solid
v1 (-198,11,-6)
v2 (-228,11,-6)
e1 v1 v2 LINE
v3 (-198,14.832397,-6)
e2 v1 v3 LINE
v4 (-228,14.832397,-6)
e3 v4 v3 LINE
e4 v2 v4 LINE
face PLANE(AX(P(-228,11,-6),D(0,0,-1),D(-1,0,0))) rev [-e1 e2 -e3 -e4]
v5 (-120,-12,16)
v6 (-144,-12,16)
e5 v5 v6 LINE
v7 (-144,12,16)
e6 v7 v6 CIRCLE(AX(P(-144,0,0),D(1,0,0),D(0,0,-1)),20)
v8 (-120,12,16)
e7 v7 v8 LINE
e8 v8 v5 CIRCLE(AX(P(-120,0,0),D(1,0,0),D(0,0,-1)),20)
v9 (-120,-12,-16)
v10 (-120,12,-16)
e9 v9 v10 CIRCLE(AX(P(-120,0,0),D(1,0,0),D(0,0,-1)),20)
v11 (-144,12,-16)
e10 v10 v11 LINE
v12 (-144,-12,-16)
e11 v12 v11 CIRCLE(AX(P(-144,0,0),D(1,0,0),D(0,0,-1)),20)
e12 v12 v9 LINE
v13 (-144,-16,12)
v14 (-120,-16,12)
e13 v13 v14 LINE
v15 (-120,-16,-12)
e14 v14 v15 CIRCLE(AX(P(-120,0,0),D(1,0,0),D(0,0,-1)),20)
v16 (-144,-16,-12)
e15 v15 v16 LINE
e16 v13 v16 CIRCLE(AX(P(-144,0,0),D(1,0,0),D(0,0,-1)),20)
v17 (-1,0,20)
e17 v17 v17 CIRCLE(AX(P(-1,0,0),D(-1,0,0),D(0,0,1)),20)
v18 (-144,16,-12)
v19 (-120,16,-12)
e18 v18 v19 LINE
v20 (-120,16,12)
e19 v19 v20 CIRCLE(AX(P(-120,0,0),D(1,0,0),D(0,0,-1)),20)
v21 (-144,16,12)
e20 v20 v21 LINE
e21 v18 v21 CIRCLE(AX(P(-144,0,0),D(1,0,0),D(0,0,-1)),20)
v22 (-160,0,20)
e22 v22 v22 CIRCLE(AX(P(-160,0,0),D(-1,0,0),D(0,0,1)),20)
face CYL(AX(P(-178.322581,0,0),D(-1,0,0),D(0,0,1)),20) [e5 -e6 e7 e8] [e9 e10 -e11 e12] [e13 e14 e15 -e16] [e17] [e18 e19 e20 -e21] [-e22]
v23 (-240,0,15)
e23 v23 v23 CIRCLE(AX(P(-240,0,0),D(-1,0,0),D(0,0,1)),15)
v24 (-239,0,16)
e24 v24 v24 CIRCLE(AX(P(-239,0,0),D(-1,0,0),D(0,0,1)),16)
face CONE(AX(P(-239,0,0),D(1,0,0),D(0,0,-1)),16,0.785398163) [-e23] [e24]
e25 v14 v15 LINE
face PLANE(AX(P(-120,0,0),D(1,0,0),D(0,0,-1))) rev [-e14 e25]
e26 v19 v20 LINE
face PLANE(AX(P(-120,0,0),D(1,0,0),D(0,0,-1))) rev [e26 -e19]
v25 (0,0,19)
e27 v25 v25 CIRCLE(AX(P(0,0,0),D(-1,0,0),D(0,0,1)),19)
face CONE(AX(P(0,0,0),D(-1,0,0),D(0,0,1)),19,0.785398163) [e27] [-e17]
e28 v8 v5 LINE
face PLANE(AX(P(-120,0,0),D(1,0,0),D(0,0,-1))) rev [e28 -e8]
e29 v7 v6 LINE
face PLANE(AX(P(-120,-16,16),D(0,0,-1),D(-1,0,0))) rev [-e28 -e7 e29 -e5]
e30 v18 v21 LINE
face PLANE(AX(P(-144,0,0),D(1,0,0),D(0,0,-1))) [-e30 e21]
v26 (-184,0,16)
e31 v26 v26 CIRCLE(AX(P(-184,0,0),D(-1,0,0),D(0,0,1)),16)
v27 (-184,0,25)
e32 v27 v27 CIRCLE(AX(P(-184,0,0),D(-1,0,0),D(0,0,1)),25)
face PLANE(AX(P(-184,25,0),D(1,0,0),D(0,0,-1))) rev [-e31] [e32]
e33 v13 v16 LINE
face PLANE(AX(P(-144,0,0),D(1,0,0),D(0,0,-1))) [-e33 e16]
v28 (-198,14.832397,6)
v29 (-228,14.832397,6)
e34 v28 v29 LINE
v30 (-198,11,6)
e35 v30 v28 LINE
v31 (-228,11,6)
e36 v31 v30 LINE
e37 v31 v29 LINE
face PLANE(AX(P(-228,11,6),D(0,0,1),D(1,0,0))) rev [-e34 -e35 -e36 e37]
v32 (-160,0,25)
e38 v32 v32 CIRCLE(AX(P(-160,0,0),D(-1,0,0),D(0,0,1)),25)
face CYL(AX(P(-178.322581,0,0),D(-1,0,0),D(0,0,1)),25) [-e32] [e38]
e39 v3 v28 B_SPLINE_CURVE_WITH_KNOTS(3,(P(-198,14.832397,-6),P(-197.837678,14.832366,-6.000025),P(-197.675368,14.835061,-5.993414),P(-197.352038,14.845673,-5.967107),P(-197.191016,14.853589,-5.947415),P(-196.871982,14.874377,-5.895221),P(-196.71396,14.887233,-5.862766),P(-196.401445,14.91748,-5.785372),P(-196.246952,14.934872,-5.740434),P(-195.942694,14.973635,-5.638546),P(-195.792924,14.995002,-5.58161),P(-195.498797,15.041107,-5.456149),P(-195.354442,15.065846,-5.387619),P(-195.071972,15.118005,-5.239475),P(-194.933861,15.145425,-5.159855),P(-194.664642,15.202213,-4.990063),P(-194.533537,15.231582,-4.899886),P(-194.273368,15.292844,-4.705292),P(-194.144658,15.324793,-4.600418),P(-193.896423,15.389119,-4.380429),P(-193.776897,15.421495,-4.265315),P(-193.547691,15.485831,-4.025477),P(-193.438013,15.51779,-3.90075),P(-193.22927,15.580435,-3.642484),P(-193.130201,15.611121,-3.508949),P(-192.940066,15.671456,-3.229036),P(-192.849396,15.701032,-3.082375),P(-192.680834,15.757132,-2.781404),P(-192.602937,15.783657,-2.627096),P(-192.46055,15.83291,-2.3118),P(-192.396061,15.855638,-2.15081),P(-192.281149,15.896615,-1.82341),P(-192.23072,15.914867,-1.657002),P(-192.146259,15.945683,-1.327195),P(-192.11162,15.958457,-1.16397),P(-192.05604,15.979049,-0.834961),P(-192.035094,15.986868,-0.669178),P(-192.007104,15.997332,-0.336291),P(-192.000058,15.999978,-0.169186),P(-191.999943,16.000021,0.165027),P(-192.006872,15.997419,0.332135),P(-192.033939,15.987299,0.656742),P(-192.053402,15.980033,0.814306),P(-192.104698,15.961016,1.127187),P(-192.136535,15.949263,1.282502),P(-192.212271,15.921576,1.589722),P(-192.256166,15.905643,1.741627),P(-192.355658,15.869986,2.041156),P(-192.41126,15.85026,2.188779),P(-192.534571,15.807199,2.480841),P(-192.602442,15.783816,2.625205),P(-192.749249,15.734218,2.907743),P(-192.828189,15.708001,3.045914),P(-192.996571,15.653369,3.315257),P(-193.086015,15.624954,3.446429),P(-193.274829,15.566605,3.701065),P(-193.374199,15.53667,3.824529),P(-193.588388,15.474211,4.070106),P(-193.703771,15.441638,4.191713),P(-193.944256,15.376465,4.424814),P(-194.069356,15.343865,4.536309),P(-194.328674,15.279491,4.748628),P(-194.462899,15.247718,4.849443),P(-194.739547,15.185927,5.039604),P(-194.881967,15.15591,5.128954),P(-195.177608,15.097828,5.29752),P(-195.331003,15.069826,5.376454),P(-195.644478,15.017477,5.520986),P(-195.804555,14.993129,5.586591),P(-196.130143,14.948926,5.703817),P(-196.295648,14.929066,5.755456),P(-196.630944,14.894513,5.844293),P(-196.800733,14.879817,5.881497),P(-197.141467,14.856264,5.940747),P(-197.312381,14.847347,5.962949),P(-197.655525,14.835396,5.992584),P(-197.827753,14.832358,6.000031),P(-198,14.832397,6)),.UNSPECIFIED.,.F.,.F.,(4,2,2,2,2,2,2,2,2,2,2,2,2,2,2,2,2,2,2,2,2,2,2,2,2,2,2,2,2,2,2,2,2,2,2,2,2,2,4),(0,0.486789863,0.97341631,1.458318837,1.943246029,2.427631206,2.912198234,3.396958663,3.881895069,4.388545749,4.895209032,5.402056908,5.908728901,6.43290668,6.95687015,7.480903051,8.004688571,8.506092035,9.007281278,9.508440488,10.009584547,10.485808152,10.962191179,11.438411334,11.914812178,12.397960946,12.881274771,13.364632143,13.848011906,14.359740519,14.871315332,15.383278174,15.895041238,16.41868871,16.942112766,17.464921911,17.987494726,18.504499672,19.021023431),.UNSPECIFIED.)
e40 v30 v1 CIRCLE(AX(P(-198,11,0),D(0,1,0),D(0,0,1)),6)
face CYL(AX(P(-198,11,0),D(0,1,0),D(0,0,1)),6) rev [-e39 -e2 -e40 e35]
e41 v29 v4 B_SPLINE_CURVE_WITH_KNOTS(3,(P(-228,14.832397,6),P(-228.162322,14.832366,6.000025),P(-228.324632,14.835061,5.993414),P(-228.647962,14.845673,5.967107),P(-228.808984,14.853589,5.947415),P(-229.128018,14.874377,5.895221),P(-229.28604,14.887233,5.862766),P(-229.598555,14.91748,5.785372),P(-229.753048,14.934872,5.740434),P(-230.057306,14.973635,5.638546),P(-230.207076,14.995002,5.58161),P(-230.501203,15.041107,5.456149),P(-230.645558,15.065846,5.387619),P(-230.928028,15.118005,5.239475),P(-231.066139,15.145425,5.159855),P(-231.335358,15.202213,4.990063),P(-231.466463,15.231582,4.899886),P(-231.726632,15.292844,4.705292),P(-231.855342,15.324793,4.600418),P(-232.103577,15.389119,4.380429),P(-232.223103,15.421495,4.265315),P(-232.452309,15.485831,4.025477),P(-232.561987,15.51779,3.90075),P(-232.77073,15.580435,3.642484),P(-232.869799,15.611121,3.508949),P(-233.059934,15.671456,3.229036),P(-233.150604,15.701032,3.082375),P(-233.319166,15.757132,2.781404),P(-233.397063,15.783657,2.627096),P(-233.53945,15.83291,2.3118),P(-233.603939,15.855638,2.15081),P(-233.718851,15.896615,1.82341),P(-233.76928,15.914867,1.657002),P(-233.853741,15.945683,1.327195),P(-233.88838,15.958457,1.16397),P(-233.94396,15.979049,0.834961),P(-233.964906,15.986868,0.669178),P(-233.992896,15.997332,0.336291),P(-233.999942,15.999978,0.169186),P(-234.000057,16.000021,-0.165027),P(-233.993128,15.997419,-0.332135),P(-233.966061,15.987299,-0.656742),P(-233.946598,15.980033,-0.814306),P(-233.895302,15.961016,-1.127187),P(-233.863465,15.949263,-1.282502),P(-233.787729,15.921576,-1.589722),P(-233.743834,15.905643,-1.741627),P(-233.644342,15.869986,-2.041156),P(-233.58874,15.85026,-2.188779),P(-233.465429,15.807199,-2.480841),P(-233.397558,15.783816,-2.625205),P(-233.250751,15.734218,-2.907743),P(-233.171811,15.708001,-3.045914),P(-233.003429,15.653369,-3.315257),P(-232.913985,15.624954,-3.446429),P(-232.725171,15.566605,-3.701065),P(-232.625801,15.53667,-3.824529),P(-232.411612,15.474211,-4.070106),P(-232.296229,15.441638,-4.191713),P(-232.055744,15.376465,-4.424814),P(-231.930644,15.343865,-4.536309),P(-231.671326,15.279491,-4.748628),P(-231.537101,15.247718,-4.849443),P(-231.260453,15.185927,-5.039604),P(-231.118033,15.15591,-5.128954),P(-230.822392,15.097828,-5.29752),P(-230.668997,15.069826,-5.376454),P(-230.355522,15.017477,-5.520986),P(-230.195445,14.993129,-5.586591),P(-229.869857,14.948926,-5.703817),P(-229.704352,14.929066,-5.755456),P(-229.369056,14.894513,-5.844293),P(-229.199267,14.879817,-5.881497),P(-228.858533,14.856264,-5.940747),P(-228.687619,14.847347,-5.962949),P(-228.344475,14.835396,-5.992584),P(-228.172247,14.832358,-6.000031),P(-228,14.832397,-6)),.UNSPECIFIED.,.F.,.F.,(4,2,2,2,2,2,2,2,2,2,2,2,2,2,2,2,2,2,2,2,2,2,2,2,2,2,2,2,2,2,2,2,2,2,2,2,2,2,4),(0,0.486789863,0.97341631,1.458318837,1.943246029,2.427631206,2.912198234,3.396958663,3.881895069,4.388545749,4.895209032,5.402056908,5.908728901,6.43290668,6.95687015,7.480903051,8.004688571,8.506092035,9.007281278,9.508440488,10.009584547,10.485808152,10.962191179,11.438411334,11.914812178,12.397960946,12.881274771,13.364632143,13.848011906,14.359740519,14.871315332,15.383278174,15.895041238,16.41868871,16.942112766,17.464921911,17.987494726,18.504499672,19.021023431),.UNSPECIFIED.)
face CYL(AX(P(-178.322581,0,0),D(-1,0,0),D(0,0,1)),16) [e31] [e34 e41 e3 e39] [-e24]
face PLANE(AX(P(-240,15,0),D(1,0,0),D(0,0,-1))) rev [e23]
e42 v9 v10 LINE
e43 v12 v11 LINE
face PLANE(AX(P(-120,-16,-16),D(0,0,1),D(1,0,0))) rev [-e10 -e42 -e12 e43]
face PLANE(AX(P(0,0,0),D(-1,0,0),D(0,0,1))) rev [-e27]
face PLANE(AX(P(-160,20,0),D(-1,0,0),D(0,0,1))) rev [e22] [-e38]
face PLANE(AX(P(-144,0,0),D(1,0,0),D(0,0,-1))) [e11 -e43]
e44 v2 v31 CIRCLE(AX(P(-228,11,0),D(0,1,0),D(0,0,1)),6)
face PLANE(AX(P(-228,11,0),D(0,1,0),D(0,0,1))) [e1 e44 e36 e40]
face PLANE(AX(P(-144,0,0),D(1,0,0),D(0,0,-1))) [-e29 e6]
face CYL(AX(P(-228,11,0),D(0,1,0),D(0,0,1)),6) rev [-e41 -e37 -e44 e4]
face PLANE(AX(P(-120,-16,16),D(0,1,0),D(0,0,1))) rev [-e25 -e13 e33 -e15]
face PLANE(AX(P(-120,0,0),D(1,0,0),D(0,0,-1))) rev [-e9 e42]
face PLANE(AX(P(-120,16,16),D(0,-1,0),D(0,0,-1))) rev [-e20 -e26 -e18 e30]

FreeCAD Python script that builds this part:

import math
import FreeCAD as App
import Part
import Sketcher


def add_polygon(sketch, points):
    """Adds a closed chain of lines whose ends are joined by coincident constraints."""
    first, n = sketch.GeometryCount, len(points)
    for a, b in zip(points, points[1:] + points[:1]):
        sketch.addGeometry(Part.LineSegment(App.Vector(*a, 0), App.Vector(*b, 0)), False)
    for i in range(n):
        sketch.addConstraint(Sketcher.Constraint("Coincident", first + i, 2, first + (i + 1) % n, 1))

doc = App.newDocument("Part")
body = doc.addObject("PartDesign::Body", "Body")

# Sketch on XY plane
sketch1 = body.newObject("Sketcher::SketchObject", "Sketch")
sketch1.AttachmentSupport = (doc.getObject("XY_Plane"), [""])
sketch1.MapMode = "FlatFace"
add_polygon(sketch1, [(0, 0), (0, 19), (-1, 20), (-160, 20), (-160, 25), (-184, 25), (-184, 16), (-239, 16), (-240, 15), (-240, 0)])  # lines 0-9
sketch1.addConstraint([
    Sketcher.Constraint("Vertical", 0),
    Sketcher.Constraint("Horizontal", 2),
    Sketcher.Constraint("Vertical", 3),
    Sketcher.Constraint("Horizontal", 4),
    Sketcher.Constraint("Vertical", 5),
    Sketcher.Constraint("Horizontal", 6),
    Sketcher.Constraint("Vertical", 8),
    Sketcher.Constraint("Horizontal", 9),
    Sketcher.Constraint("Coincident", 9, 2, -1, 1),
    Sketcher.Constraint("Perpendicular", 1, 7),
    Sketcher.Constraint("Equal", 1, 7),
    Sketcher.Constraint("DistanceX", 2, 2, 2, 1, 159.0),
    Sketcher.Constraint("DistanceX", 4, 2, 4, 1, 24.0),
    Sketcher.Constraint("DistanceX", 6, 2, 6, 1, 55.0),
    Sketcher.Constraint("DistanceX", 9, 1, 9, 2, 240.0),
    Sketcher.Constraint("DistanceY", 0, 1, 0, 2, 19.0),
    Sketcher.Constraint("DistanceY", 3, 1, 3, 2, 5.0),
    Sketcher.Constraint("DistanceY", 5, 2, 5, 1, 9.0),
    Sketcher.Constraint("DistanceY", 8, 2, 8, 1, 15.0),
])
revolution = body.newObject("PartDesign::Revolution", "Revolution")
revolution.Profile = sketch1
revolution.ReferenceAxis = (sketch1, ["H_Axis"])
revolution.Angle = 360

# Sketch on YZ plane
sketch2 = body.newObject("Sketcher::SketchObject", "Sketch001")
sketch2.AttachmentSupport = (doc.getObject("YZ_Plane"), [""])
sketch2.MapMode = "FlatFace"
sketch2.AttachmentOffset = App.Placement(App.Vector(0, 0, -144), App.Rotation())
add_polygon(sketch2, [(51, 51), (-51, 51), (-51, -51), (51, -51)])  # lines 0-3
add_polygon(sketch2, [(-16, -16), (-16, 16), (16, 16), (16, -16)])  # lines 4-7
sketch2.addConstraint([
    Sketcher.Constraint("Horizontal", 0),
    Sketcher.Constraint("Vertical", 1),
    Sketcher.Constraint("Horizontal", 2),
    Sketcher.Constraint("Vertical", 3),
    Sketcher.Constraint("Vertical", 4),
    Sketcher.Constraint("Horizontal", 5),
    Sketcher.Constraint("Vertical", 6),
    Sketcher.Constraint("Horizontal", 7),
    Sketcher.Constraint("Symmetric", 0, 2, 2, 2, -1, 1),
    Sketcher.Constraint("Symmetric", 4, 2, 6, 2, -1, 1),
    Sketcher.Constraint("Equal", 2, 1),
    Sketcher.Constraint("Equal", 7, 4),
    Sketcher.Constraint("DistanceX", 5, 1, 5, 2, 32.0),
    Sketcher.Constraint("DistanceX", 0, 2, 0, 1, 102.04),
])
pocket1 = body.newObject("PartDesign::Pocket", "Pocket")
pocket1.Profile = sketch2
pocket1.Length = 24
pocket1.Reversed = True

# Sketch on XZ plane
sketch3 = body.newObject("Sketcher::SketchObject", "Sketch002")
sketch3.AttachmentSupport = (doc.getObject("XZ_Plane"), [""])
sketch3.MapMode = "FlatFace"
sketch3.AttachmentOffset = App.Placement(App.Vector(0, 0, -16), App.Rotation())
sketch3.addGeometry([
    Part.LineSegment(App.Vector(-198, -6, 0), App.Vector(-228, -6, 0)),
    Part.ArcOfCircle(Part.Circle(App.Vector(-228, 0, 0), App.Vector(0, 0, 1), 6), math.radians(90), math.radians(270)),
    Part.LineSegment(App.Vector(-228, 6, 0), App.Vector(-198, 6, 0)),
    Part.ArcOfCircle(Part.Circle(App.Vector(-198, 0, 0), App.Vector(0, 0, 1), 6), math.radians(-90), math.radians(90)),
], False)
sketch3.addConstraint([
    Sketcher.Constraint("Tangent", 0, 2, 1, 2),
    Sketcher.Constraint("Tangent", 1, 1, 2, 1),
    Sketcher.Constraint("Tangent", 2, 2, 3, 2),
    Sketcher.Constraint("Tangent", 3, 1, 0, 1),
    Sketcher.Constraint("Horizontal", 0),
    Sketcher.Constraint("Horizontal", 2),
    Sketcher.Constraint("PointOnObject", 1, 3, -1),
    Sketcher.Constraint("Radius", 1, 6.0),
    Sketcher.Constraint("DistanceX", 0, 2, 0, 1, 30.0),
    Sketcher.Constraint("DistanceX", 1, 3, -1, 1, 228.0),
])
pocket2 = body.newObject("PartDesign::Pocket", "Pocket001")
pocket2.Profile = sketch3
pocket2.Length = 5
pocket2.Reversed = True

doc.recompute()
